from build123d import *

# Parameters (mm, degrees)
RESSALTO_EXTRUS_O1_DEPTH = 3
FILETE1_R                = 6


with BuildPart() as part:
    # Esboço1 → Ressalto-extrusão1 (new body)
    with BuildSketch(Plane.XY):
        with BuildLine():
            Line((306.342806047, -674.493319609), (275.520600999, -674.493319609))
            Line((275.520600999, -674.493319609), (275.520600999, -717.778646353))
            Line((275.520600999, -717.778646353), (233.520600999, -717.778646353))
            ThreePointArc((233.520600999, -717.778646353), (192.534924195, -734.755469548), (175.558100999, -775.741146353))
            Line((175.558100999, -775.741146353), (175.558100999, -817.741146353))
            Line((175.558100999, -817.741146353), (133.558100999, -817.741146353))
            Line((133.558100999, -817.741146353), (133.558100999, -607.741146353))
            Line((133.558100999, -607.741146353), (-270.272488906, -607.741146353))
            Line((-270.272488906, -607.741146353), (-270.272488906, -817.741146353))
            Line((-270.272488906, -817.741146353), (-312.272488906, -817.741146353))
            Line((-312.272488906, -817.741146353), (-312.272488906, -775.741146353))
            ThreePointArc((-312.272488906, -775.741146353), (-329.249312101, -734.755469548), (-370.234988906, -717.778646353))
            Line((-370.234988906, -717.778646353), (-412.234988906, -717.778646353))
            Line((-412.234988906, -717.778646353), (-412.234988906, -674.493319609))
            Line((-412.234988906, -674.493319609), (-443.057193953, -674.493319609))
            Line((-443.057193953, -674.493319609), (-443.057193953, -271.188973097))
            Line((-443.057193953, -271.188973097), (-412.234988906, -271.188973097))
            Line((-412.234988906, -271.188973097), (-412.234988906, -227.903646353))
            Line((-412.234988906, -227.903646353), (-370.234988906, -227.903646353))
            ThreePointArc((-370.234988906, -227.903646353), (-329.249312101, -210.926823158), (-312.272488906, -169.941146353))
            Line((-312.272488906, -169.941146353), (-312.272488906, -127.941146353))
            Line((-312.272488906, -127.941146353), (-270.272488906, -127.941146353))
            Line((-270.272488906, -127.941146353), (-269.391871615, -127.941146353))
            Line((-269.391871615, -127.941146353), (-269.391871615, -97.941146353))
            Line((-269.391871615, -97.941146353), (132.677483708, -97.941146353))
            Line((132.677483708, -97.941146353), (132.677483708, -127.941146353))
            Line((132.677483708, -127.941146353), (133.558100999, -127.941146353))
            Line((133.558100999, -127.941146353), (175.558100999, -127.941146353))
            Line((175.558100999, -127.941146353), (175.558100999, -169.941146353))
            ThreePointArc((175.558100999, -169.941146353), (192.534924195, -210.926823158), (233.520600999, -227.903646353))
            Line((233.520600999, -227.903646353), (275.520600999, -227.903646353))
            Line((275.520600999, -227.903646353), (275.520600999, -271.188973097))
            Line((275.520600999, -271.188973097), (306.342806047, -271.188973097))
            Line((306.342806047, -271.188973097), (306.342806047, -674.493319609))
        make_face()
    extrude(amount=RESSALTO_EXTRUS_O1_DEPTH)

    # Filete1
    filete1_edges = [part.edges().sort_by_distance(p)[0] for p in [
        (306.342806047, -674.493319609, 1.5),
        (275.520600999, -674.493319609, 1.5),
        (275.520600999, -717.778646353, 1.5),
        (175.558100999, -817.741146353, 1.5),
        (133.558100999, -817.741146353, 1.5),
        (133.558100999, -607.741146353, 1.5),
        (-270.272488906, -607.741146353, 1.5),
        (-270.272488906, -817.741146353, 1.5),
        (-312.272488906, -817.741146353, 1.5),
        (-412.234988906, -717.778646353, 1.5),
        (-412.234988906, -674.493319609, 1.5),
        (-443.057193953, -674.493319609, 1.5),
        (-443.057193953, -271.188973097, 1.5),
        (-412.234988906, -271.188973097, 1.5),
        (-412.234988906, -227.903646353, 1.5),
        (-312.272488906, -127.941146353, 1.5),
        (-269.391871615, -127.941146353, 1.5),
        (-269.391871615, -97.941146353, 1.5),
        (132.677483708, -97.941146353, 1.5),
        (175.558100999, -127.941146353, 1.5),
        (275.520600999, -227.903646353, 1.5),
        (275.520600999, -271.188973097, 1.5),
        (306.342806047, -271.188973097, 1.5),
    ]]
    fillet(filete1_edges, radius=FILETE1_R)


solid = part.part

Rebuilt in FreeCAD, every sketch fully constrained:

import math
import FreeCAD as App
import Part
import Sketcher
from FreeCAD import Vector
Q = App.Units.Quantity


def edges_at(feature, points):
    """Names of the edges that pass closest to the given points."""
    edges = feature.Shape.Edges
    near = lambda p: min(range(len(edges)), key=lambda i: edges[i].distToShape(Part.Vertex(*p))[0])
    return sorted({f"Edge{near(p) + 1}" for p in points})

doc = App.newDocument("Part")
params = doc.addObject("Spreadsheet::Sheet", "Params")
for row, (alias, value) in enumerate([
    ("sketch1_width", "42 mm"),
    ("sketch1_height", "30 mm"),
    ("sketch1_height2", "210 mm"),
    ("pad1_length", "3 mm"),
    ("fillet_radius", "6 mm"),
], start=1):
    params.set(f"A{row}", alias)
    params.set(f"B{row}", "=" + value)
    params.setAlias(f"B{row}", alias)

body = doc.addObject("PartDesign::Body", "Body")

# Sketch on XY plane
sketch1 = body.newObject("Sketcher::SketchObject", "Sketch")
sketch1.AttachmentSupport = (doc.getObject("XY_Plane"), [""])
sketch1.MapMode = "FlatFace"
sketch1.addGeometry([
    Part.LineSegment(Vector(275.520601, -674.49332, 0), Vector(306.342806, -674.49332, 0)),  # 0
    Part.LineSegment(Vector(306.342806, -674.49332, 0), Vector(306.342806, -271.188973, 0)),  # 1
    Part.LineSegment(Vector(306.342806, -271.188973, 0), Vector(275.520601, -271.188973, 0)),  # 2
    Part.LineSegment(Vector(275.520601, -271.188973, 0), Vector(275.520601, -227.903646, 0)),  # 3
    Part.LineSegment(Vector(275.520601, -227.903646, 0), Vector(233.520601, -227.903646, 0)),  # 4
    Part.ArcOfCircle(Part.Circle(Vector(233.520601, -169.941146, 0), Vector(0, 0, 1), 57.9625), math.radians(180), math.radians(270)),  # 5
    Part.LineSegment(Vector(175.558101, -169.941146, 0), Vector(175.558101, -127.941146, 0)),  # 6
    Part.LineSegment(Vector(175.558101, -127.941146, 0), Vector(132.677484, -127.941146, 0)),  # 7
    Part.LineSegment(Vector(132.677484, -127.941146, 0), Vector(132.677484, -97.941146, 0)),  # 8
    Part.LineSegment(Vector(132.677484, -97.941146, 0), Vector(-269.391872, -97.941146, 0)),  # 9
    Part.LineSegment(Vector(-269.391872, -97.941146, 0), Vector(-269.391872, -127.941146, 0)),  # 10
    Part.LineSegment(Vector(-269.391872, -127.941146, 0), Vector(-312.272489, -127.941146, 0)),  # 11
    Part.LineSegment(Vector(-312.272489, -127.941146, 0), Vector(-312.272489, -169.941146, 0)),  # 12
    Part.ArcOfCircle(Part.Circle(Vector(-370.234989, -169.941146, 0), Vector(0, 0, 1), 57.9625), math.radians(-90), math.radians(0)),  # 13
    Part.LineSegment(Vector(-370.234989, -227.903646, 0), Vector(-412.234989, -227.903646, 0)),  # 14
    Part.LineSegment(Vector(-412.234989, -227.903646, 0), Vector(-412.234989, -271.188973, 0)),  # 15
    Part.LineSegment(Vector(-412.234989, -271.188973, 0), Vector(-443.057194, -271.188973, 0)),  # 16
    Part.LineSegment(Vector(-443.057194, -271.188973, 0), Vector(-443.057194, -674.49332, 0)),  # 17
    Part.LineSegment(Vector(-443.057194, -674.49332, 0), Vector(-412.234989, -674.49332, 0)),  # 18
    Part.LineSegment(Vector(-412.234989, -674.49332, 0), Vector(-412.234989, -717.778646, 0)),  # 19
    Part.LineSegment(Vector(-412.234989, -717.778646, 0), Vector(-370.234989, -717.778646, 0)),  # 20
    Part.ArcOfCircle(Part.Circle(Vector(-370.234989, -775.741146, 0), Vector(0, 0, 1), 57.9625), math.radians(0), math.radians(90)),  # 21
    Part.LineSegment(Vector(-312.272489, -775.741146, 0), Vector(-312.272489, -817.741146, 0)),  # 22
    Part.LineSegment(Vector(-312.272489, -817.741146, 0), Vector(-270.272489, -817.741146, 0)),  # 23
    Part.LineSegment(Vector(-270.272489, -817.741146, 0), Vector(-270.272489, -607.741146, 0)),  # 24
    Part.LineSegment(Vector(-270.272489, -607.741146, 0), Vector(133.558101, -607.741146, 0)),  # 25
    Part.LineSegment(Vector(133.558101, -607.741146, 0), Vector(133.558101, -817.741146, 0)),  # 26
    Part.LineSegment(Vector(133.558101, -817.741146, 0), Vector(175.558101, -817.741146, 0)),  # 27
    Part.LineSegment(Vector(175.558101, -817.741146, 0), Vector(175.558101, -775.741146, 0)),  # 28
    Part.ArcOfCircle(Part.Circle(Vector(233.520601, -775.741146, 0), Vector(0, 0, 1), 57.9625), math.radians(90), math.radians(180)),  # 29
    Part.LineSegment(Vector(233.520601, -717.778646, 0), Vector(275.520601, -717.778646, 0)),  # 30
    Part.LineSegment(Vector(275.520601, -717.778646, 0), Vector(275.520601, -674.49332, 0)),  # 31
], False)
sketch1.addConstraint([
    Sketcher.Constraint("Coincident", 0, 2, 1, 1),
    Sketcher.Constraint("Coincident", 1, 2, 2, 1),
    Sketcher.Constraint("Coincident", 2, 2, 3, 1),
    Sketcher.Constraint("Coincident", 3, 2, 4, 1),
    Sketcher.Constraint("Tangent", 4, 2, 5, 2),
    Sketcher.Constraint("Tangent", 5, 1, 6, 1),
    Sketcher.Constraint("Coincident", 6, 2, 7, 1),
    Sketcher.Constraint("Coincident", 7, 2, 8, 1),
    Sketcher.Constraint("Coincident", 8, 2, 9, 1),
    Sketcher.Constraint("Coincident", 9, 2, 10, 1),
    Sketcher.Constraint("Coincident", 10, 2, 11, 1),
    Sketcher.Constraint("Coincident", 11, 2, 12, 1),
    Sketcher.Constraint("Tangent", 12, 2, 13, 2),
    Sketcher.Constraint("Tangent", 13, 1, 14, 1),
    Sketcher.Constraint("Coincident", 14, 2, 15, 1),
    Sketcher.Constraint("Coincident", 15, 2, 16, 1),
    Sketcher.Constraint("Coincident", 16, 2, 17, 1),
    Sketcher.Constraint("Coincident", 17, 2, 18, 1),
    Sketcher.Constraint("Coincident", 18, 2, 19, 1),
    Sketcher.Constraint("Coincident", 19, 2, 20, 1),
    Sketcher.Constraint("Tangent", 20, 2, 21, 2),
    Sketcher.Constraint("Tangent", 21, 1, 22, 1),
    Sketcher.Constraint("Coincident", 22, 2, 23, 1),
    Sketcher.Constraint("Coincident", 23, 2, 24, 1),
    Sketcher.Constraint("Coincident", 24, 2, 25, 1),
    Sketcher.Constraint("Coincident", 25, 2, 26, 1),
    Sketcher.Constraint("Coincident", 26, 2, 27, 1),
    Sketcher.Constraint("Coincident", 27, 2, 28, 1),
    Sketcher.Constraint("Tangent", 28, 2, 29, 2),
    Sketcher.Constraint("Tangent", 29, 1, 30, 1),
    Sketcher.Constraint("Coincident", 30, 2, 31, 1),
    Sketcher.Constraint("Coincident", 31, 2, 0, 1),
    Sketcher.Constraint("Horizontal", 0),
    Sketcher.Constraint("Vertical", 1),
    Sketcher.Constraint("Horizontal", 2),
    Sketcher.Constraint("Vertical", 3),
    Sketcher.Constraint("Horizontal", 4),
    Sketcher.Constraint("Vertical", 6),
    Sketcher.Constraint("Horizontal", 7),
    Sketcher.Constraint("Vertical", 8),
    Sketcher.Constraint("Horizontal", 9),
    Sketcher.Constraint("Vertical", 10),
    Sketcher.Constraint("Horizontal", 11),
    Sketcher.Constraint("Vertical", 12),
    Sketcher.Constraint("Horizontal", 14),
    Sketcher.Constraint("Vertical", 15),
    Sketcher.Constraint("Horizontal", 16),
    Sketcher.Constraint("Vertical", 17),
    Sketcher.Constraint("Horizontal", 18),
    Sketcher.Constraint("Vertical", 19),
    Sketcher.Constraint("Horizontal", 20),
    Sketcher.Constraint("Vertical", 22),
    Sketcher.Constraint("Horizontal", 23),
    Sketcher.Constraint("Vertical", 24),
    Sketcher.Constraint("Horizontal", 25),
    Sketcher.Constraint("Vertical", 26),
    Sketcher.Constraint("Horizontal", 27),
    Sketcher.Constraint("Vertical", 28),
    Sketcher.Constraint("Horizontal", 30),
    Sketcher.Constraint("Vertical", 31),
    Sketcher.Constraint("Equal", 5, 13),
    Sketcher.Constraint("Equal", 13, 21),
    Sketcher.Constraint("Equal", 21, 29),
    Sketcher.Constraint("Horizontal", 5, 3, 13, 3),
    Sketcher.Constraint("Horizontal", 21, 3, 29, 3),
    Sketcher.Constraint("Horizontal", 7, 2, 10, 2),
    Sketcher.Constraint("Horizontal", 2, 2, 15, 2),
    Sketcher.Constraint("Horizontal", 0, 2, 17, 2),
    Sketcher.Constraint("Horizontal", 23, 2, 26, 2),
    Sketcher.Constraint("Vertical", 13, 3, 21, 3),
    Sketcher.Constraint("Vertical", 5, 3, 29, 3),
    Sketcher.Constraint("Vertical", 15, 2, 18, 2),
    Sketcher.Constraint("Vertical", 3, 2, 30, 2),
    Sketcher.Constraint("Equal", 7, 11),
    Sketcher.Constraint("Equal", 4, 14),
    Sketcher.Constraint("Equal", 2, 16),
    Sketcher.Constraint("Equal", 20, 23),
    Sketcher.Constraint("Equal", 23, 27),
    Sketcher.Constraint("Equal", 30, 6),
    Sketcher.Constraint("Equal", 15, 19),
    Sketcher.Constraint("Equal", 12, 22),
    Sketcher.Constraint("DistanceX", 4, 2, 4, 1, Q("42 mm")),
    Sketcher.Constraint("DistanceY", 8, 1, 8, 2, Q("30 mm")),
    Sketcher.Constraint("DistanceY", 24, 1, 24, 2, Q("210 mm")),
    Sketcher.Constraint("Radius", 5, Q("57.9625 mm")),
    Sketcher.Constraint("DistanceY", 21, 3, 13, 3, Q("605.8 mm")),
    Sketcher.Constraint("DistanceX", 25, 1, 25, 2, Q("403.83059 mm")),
    Sketcher.Constraint("DistanceX", -1, 1, 5, 3, Q("233.520601 mm")),
    Sketcher.Constraint("DistanceX", 0, 1, 0, 2, Q("30.822205 mm")),
    Sketcher.Constraint("DistanceX", 7, 2, 7, 1, Q("42.880617 mm")),
    Sketcher.Constraint("DistanceY", 1, 1, 1, 2, Q("403.304347 mm")),
    Sketcher.Constraint("DistanceY", 0, 2, -1, 1, Q("674.49332 mm")),
])
sketch1.setExpression("Constraints[81]", "Params.sketch1_width")
sketch1.setExpression("Constraints[82]", "Params.sketch1_height")
sketch1.setExpression("Constraints[83]", "Params.sketch1_height2")
pad1 = body.newObject("PartDesign::Pad", "Pad")
pad1.Profile = sketch1
pad1.setExpression("Length", "Params.pad1_length")
doc.recompute()

fillet = body.newObject("PartDesign::Fillet", "Fillet")
fillet.Base = (pad1, edges_at(pad1, [
    (306.343, -674.493, 1.5),
    (275.521, -674.493, 1.5),
    (275.521, -717.779, 1.5),
    (175.558, -817.741, 1.5),
    (133.558, -817.741, 1.5),
    (133.558, -607.741, 1.5),
    (-270.272, -607.741, 1.5),
    (-270.272, -817.741, 1.5),
    (-312.272, -817.741, 1.5),
    (-412.235, -717.779, 1.5),
    (-412.235, -674.493, 1.5),
    (-443.057, -674.493, 1.5),
    (-443.057, -271.189, 1.5),
    (-412.235, -271.189, 1.5),
    (-412.235, -227.904, 1.5),
    (-312.272, -127.941, 1.5),
    (-269.392, -127.941, 1.5),
    (-269.392, -97.941, 1.5),
    (132.677, -97.941, 1.5),
    (175.558, -127.941, 1.5),
    (275.521, -227.904, 1.5),
    (275.521, -271.189, 1.5),
    (306.343, -271.189, 1.5),
]))
fillet.setExpression("Radius", "Params.fillet_radius")

doc.recompute()
